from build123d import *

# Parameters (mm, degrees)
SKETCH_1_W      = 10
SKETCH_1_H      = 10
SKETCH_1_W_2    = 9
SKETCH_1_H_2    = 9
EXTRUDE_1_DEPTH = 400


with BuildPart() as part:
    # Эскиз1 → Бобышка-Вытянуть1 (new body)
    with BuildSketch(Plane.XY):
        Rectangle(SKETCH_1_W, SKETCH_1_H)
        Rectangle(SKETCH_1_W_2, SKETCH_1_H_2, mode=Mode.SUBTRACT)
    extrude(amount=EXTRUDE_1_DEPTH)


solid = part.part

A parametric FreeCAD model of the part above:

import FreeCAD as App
import Part
import Sketcher
from FreeCAD import Vector


def add_polygon(sketch, points):
    """Adds a closed chain of lines whose ends are joined by coincident constraints."""
    first, n = sketch.GeometryCount, len(points)
    for a, b in zip(points, points[1:] + points[:1]):
        sketch.addGeometry(Part.LineSegment(App.Vector(*a, 0), App.Vector(*b, 0)), False)
    for i in range(n):
        sketch.addConstraint(Sketcher.Constraint("Coincident", first + i, 2, first + (i + 1) % n, 1))

doc = App.newDocument("Part")
body = doc.addObject("PartDesign::Body", "Body")

# Sketch on XY plane
sketch1 = body.newObject("Sketcher::SketchObject", "Sketch")
sketch1.AttachmentSupport = (doc.getObject("XY_Plane"), [""])
sketch1.MapMode = "FlatFace"
add_polygon(sketch1, [(-5, 5), (-5, -5), (5, -5), (5, 5)])  # lines 0-3
add_polygon(sketch1, [(4, -4), (-4, -4), (-4, 4), (4, 4)])  # lines 4-7
sketch1.addConstraint([
    Sketcher.Constraint("Vertical", 0),
    Sketcher.Constraint("Horizontal", 1),
    Sketcher.Constraint("Vertical", 2),
    Sketcher.Constraint("Horizontal", 3),
    Sketcher.Constraint("Horizontal", 4),
    Sketcher.Constraint("Vertical", 5),
    Sketcher.Constraint("Horizontal", 6),
    Sketcher.Constraint("Vertical", 7),
    Sketcher.Constraint("Symmetric", 0, 2, 2, 2, -1, 1),
    Sketcher.Constraint("Symmetric", 4, 2, 6, 2, -1, 1),
    Sketcher.Constraint("Equal", 3, 0),
    Sketcher.Constraint("Equal", 6, 5),
    Sketcher.Constraint("DistanceX", 1, 1, 1, 2, 10.0),
    Sketcher.Constraint("DistanceX", 4, 2, 4, 1, 9.0),
])
pad1 = body.newObject("PartDesign::Pad", "Pad")
pad1.Profile = sketch1
pad1.Length = 400

doc.recompute()
